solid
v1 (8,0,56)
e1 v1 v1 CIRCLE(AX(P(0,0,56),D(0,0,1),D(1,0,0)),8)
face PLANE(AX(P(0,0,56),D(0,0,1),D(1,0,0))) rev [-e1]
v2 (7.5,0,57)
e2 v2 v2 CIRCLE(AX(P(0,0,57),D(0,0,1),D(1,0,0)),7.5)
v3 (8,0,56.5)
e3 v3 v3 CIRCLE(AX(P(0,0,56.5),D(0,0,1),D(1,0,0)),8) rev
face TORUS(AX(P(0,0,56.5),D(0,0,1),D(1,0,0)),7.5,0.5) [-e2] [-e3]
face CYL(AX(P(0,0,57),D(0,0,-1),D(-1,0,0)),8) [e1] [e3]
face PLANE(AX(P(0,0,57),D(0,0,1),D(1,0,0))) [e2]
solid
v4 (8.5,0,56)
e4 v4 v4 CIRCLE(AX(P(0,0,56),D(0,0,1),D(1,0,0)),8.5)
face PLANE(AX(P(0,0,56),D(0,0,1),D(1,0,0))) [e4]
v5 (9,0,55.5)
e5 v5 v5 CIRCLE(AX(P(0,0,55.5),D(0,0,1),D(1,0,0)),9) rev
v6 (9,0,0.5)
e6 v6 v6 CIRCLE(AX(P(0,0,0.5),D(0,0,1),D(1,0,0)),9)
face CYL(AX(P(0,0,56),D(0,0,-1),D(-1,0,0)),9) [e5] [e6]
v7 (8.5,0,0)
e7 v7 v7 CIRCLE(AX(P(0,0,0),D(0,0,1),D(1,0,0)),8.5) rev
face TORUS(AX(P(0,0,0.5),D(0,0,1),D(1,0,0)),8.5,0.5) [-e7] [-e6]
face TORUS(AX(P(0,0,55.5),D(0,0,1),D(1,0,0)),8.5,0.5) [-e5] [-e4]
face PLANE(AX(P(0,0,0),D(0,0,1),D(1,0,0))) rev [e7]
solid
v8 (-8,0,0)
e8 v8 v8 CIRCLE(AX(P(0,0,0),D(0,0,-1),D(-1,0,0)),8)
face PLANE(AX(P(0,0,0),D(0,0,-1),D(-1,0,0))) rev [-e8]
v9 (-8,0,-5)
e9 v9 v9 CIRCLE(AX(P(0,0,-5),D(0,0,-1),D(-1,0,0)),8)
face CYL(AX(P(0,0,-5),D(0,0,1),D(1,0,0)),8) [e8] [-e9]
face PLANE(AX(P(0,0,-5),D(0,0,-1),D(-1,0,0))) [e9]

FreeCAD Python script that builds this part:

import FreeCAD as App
import Part
import Sketcher

V = App.Vector


def edges_at(feature, points):
    """Names of the edges that pass closest to the given points."""
    edges = feature.Shape.Edges
    near = lambda p: min(range(len(edges)), key=lambda i: edges[i].distToShape(Part.Vertex(*p))[0])
    return sorted({f"Edge{near(p) + 1}" for p in points})

doc = App.newDocument("Part")
body = doc.addObject("PartDesign::Body", "Body")

sketch1 = body.newObject("Sketcher::SketchObject", "Sketch")
sketch1.AttachmentSupport = (doc.getObject("XY_Plane"), [""])
sketch1.MapMode = "FlatFace"
sketch1.addGeometry(Part.Circle(V(0, 0, 0), V(0, 0, 1), 9), False)
sketch1.addConstraint(Sketcher.Constraint("Coincident", 0, 3, -1, 1))
sketch1.addConstraint(Sketcher.Constraint("Diameter", 0, 18.0))
pad1 = body.newObject("PartDesign::Pad", "Pad")
pad1.Profile = sketch1
pad1.Length = 56
doc.recompute()

fillet = body.newObject("PartDesign::Fillet", "Fillet")
fillet.Base = (pad1, edges_at(pad1, [(-9, 0, 56)]))
fillet.Radius = 0.5
doc.recompute()

fillet2 = body.newObject("PartDesign::Fillet", "Fillet001")
fillet2.Base = (fillet, edges_at(fillet, [(-9, 0, 0)]))
fillet2.Radius = 0.5
body2 = doc.addObject("PartDesign::Body", "Body001")

sketch2 = body2.newObject("Sketcher::SketchObject", "Sketch001")
sketch2.AttachmentSupport = (doc.getObject("XY_Plane001"), [""])
sketch2.MapMode = "FlatFace"
sketch2.AttachmentOffset = App.Placement(V(0, 0, 56), App.Rotation())
sketch2.addGeometry(Part.Circle(V(0, 0, 0), V(0, 0, 1), 8), False)
sketch2.addConstraint(Sketcher.Constraint("Coincident", 0, 3, -1, 1))
sketch2.addConstraint(Sketcher.Constraint("Diameter", 0, 16.0))
pad2 = body2.newObject("PartDesign::Pad", "Pad001")
pad2.Profile = sketch2
pad2.Length = 1
doc.recompute()

fillet3 = body2.newObject("PartDesign::Fillet", "Fillet002")
fillet3.Base = (pad2, edges_at(pad2, [(-8, 0, 57)]))
fillet3.Radius = 0.5
body3 = doc.addObject("PartDesign::Body", "Body002")

sketch3 = body3.newObject("Sketcher::SketchObject", "Sketch002")
sketch3.AttachmentSupport = (doc.getObject("XY_Plane002"), [""])
sketch3.MapMode = "FlatFace"
sketch3.addGeometry(Part.Circle(V(0, 0, 0), V(0, 0, 1), 8), False)
sketch3.addConstraint(Sketcher.Constraint("Coincident", 0, 3, -1, 1))
sketch3.addConstraint(Sketcher.Constraint("Diameter", 0, 16.0))
pad3 = body3.newObject("PartDesign::Pad", "Pad002")
pad3.Profile = sketch3
pad3.Length = 5
pad3.Reversed = True

doc.recompute()
